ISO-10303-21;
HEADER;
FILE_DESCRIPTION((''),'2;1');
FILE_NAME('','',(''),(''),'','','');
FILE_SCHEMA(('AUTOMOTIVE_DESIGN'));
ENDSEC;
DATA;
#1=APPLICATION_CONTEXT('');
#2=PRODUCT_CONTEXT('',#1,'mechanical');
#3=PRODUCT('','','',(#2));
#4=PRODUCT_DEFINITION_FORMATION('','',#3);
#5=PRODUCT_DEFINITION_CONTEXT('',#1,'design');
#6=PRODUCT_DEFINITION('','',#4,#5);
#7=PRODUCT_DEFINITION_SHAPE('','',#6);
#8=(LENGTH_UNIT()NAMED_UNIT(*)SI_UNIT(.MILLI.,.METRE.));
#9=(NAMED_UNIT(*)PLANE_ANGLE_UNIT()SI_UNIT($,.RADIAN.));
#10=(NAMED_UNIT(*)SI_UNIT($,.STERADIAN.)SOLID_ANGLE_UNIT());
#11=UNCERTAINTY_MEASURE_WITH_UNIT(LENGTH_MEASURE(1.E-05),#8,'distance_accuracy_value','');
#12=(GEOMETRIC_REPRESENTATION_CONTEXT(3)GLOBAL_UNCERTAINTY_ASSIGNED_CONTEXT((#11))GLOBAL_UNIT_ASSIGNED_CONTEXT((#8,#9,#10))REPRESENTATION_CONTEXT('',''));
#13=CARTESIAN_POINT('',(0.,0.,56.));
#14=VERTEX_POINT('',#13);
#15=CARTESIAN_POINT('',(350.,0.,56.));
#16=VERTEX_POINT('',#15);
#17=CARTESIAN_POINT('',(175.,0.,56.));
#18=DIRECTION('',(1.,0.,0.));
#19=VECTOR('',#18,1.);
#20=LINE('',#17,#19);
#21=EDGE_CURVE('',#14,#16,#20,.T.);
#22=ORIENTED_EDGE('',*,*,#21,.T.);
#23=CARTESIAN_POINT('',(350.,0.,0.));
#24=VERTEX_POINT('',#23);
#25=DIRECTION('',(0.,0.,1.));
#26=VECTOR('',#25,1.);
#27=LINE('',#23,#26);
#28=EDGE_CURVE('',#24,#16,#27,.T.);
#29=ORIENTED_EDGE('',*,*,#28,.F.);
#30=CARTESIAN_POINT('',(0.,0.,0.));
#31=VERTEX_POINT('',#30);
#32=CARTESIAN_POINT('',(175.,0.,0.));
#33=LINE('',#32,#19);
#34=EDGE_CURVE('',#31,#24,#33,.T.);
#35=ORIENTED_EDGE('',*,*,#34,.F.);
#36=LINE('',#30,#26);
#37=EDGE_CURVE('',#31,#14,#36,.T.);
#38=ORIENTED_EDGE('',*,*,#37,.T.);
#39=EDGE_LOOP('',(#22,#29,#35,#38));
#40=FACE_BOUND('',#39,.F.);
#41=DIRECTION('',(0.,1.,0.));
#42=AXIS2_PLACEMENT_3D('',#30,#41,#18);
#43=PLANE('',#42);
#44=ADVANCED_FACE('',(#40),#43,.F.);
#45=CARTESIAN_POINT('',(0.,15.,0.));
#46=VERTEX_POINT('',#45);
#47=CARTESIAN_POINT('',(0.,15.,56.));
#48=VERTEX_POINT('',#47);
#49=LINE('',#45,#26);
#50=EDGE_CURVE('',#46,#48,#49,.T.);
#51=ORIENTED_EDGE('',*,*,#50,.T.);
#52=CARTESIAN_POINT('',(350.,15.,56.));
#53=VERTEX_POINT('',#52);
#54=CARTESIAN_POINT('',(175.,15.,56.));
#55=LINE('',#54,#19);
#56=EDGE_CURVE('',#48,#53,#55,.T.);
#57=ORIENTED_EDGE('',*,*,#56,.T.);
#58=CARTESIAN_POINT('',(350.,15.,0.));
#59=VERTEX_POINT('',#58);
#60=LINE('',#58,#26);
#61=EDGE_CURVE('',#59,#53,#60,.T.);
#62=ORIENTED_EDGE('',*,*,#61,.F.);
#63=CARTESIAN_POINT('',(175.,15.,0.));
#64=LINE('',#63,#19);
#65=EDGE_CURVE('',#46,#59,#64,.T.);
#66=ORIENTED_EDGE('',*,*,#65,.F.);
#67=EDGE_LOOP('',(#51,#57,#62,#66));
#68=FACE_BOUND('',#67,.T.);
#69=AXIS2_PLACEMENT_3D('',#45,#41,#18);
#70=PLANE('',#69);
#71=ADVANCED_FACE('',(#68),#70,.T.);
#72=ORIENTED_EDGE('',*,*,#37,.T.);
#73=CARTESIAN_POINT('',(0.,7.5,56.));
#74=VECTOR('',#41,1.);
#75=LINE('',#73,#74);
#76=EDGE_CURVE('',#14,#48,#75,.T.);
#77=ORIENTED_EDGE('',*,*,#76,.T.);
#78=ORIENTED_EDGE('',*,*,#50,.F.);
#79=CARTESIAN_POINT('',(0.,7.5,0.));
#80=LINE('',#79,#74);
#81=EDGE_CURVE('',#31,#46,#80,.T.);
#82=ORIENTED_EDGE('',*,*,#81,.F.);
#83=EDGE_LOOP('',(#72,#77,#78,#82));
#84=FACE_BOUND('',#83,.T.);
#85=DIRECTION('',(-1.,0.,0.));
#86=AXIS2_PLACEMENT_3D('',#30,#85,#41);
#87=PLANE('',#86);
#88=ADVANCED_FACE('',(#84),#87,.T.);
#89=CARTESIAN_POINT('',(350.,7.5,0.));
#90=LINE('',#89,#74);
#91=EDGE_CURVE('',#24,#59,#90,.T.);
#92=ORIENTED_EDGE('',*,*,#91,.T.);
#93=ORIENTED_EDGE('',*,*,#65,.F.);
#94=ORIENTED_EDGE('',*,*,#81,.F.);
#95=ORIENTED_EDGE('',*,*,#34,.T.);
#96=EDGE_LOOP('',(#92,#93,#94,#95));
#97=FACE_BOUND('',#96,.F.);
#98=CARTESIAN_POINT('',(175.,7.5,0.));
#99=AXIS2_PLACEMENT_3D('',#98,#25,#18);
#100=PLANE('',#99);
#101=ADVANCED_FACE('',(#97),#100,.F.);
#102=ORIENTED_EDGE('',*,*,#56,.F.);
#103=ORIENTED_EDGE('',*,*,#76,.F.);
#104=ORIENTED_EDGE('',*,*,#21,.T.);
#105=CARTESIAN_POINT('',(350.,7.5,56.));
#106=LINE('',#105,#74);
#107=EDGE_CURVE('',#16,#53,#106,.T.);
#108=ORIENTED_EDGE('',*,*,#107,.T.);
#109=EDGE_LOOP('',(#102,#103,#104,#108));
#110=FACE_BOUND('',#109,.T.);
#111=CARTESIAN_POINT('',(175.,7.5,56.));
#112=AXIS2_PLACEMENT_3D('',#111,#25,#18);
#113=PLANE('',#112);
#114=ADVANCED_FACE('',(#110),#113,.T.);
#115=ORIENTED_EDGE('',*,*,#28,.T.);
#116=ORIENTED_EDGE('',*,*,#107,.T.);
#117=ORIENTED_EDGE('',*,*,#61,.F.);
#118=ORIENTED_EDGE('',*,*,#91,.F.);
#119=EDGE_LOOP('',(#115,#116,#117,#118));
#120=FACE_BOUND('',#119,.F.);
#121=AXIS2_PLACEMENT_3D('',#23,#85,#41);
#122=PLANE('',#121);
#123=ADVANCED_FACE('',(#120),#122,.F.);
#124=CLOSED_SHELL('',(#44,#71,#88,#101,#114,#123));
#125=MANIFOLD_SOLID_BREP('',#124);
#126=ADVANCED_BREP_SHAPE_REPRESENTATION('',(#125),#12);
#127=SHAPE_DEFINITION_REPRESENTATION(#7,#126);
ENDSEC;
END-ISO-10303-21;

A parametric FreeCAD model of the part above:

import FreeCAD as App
import Part
import Sketcher

V = App.Vector
Q = App.Units.Quantity


def add_polygon(sketch, points):
    """Adds a closed chain of lines whose ends are joined by coincident constraints."""
    first, n = sketch.GeometryCount, len(points)
    for a, b in zip(points, points[1:] + points[:1]):
        sketch.addGeometry(Part.LineSegment(App.Vector(*a, 0), App.Vector(*b, 0)), False)
    for i in range(n):
        sketch.addConstraint(Sketcher.Constraint("Coincident", first + i, 2, first + (i + 1) % n, 1))

doc = App.newDocument("Part")
body = doc.addObject("PartDesign::Body", "Body")

# Sketch on XY plane
sketch1 = doc.addObject("Sketcher::SketchObject", "Sketch")
body.addObject(sketch1)
sketch1.AttachmentSupport = (doc.XY_Plane, [""])
sketch1.MapMode = "FlatFace"
add_polygon(sketch1, [(0, 15), (0, 0), (350, 0), (350, 15)])  # lines 0-3
sketch1.addConstraint([
    Sketcher.Constraint("Vertical", 0),
    Sketcher.Constraint("Horizontal", 1),
    Sketcher.Constraint("Vertical", 2),
    Sketcher.Constraint("Horizontal", 3),
    Sketcher.Constraint("Coincident", 0, 2, -1, 1),
    Sketcher.Constraint("DistanceX", 1, 1, 1, 2, Q("350 mm")),
    Sketcher.Constraint("DistanceY", 0, 2, 0, 1, Q("15 mm")),
])
pad1 = doc.addObject("PartDesign::Pad", "Pad")
body.addObject(pad1)
pad1.Profile = sketch1
pad1.Length = 56

doc.recompute()
